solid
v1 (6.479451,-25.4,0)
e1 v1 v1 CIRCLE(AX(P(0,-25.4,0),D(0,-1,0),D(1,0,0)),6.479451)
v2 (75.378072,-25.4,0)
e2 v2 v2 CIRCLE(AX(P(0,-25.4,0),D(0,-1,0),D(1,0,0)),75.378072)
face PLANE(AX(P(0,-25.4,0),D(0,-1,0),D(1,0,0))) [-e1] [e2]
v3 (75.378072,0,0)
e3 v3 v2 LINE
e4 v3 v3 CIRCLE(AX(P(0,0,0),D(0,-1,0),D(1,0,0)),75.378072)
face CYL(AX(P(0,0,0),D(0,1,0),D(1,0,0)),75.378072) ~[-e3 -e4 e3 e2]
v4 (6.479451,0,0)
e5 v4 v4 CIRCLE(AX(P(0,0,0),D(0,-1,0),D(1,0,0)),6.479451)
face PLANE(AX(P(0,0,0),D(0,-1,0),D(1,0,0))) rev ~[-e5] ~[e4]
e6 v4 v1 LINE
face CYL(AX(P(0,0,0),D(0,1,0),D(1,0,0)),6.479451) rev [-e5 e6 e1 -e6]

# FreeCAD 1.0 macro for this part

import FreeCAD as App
import Part
import Sketcher
Q = App.Units.Quantity

doc = App.newDocument("Part")
body = doc.addObject("PartDesign::Body", "Body")

# Sketch on XZ plane
sketch1 = body.newObject("Sketcher::SketchObject", "Sketch")
sketch1.AttachmentSupport = (doc.getObject("XZ_Plane"), [""])
sketch1.MapMode = "FlatFace"
sketch1.addGeometry(Part.Circle(App.Vector(0, 0, 0), App.Vector(0, 0, 1), 75.378072), False)
sketch1.addGeometry(Part.Circle(App.Vector(0, 0, 0), App.Vector(0, 0, 1), 6.479451), False)
sketch1.addConstraint(Sketcher.Constraint("Coincident", 0, 3, -1, 1))
sketch1.addConstraint(Sketcher.Constraint("Coincident", 1, 3, -1, 1))
sketch1.addConstraint(Sketcher.Constraint("Diameter", 0, Q("150.756144 mm")))
sketch1.addConstraint(Sketcher.Constraint("Diameter", 1, Q("12.958903 mm")))
pad1 = body.newObject("PartDesign::Pad", "Pad")
pad1.Profile = sketch1
pad1.Length = Q("1 in")

doc.recompute()
